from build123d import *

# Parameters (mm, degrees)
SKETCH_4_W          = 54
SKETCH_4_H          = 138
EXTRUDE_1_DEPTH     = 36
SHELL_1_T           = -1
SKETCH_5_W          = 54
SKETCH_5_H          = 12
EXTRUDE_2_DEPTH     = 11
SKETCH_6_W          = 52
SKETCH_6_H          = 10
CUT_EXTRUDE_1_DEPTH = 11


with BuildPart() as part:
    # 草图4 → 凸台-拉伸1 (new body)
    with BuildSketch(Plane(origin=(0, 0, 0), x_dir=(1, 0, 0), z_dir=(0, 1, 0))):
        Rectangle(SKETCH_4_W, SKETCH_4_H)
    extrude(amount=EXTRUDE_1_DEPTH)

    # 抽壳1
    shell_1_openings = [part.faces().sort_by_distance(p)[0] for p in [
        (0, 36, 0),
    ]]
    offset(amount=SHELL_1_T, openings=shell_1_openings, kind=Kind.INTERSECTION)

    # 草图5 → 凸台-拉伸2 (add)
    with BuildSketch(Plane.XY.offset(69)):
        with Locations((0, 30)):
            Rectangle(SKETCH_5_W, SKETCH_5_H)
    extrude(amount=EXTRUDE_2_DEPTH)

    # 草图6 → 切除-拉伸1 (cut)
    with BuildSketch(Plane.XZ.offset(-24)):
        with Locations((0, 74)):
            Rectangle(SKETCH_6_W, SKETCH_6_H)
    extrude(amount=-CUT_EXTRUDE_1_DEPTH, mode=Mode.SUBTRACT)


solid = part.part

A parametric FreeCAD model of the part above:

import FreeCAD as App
import Part
import Sketcher


def faces_at(feature, points):
    """Names of the faces that lie closest to the given points."""
    faces = feature.Shape.Faces
    near = lambda p: min(range(len(faces)), key=lambda i: faces[i].distToShape(Part.Vertex(*p))[0])
    return sorted({f"Face{near(p) + 1}" for p in points})

doc = App.newDocument("Part")
params = doc.addObject("Spreadsheet::Sheet", "Params")
for row, (alias, value) in enumerate([
    ("sketch1_width", "54 mm"),
    ("sketch1_height", "138 mm"),
    ("pad1_length", "36 mm"),
    ("thickness_wall", "1 mm"),
    ("sketch2_width", "54 mm"),
    ("sketch2_height", "12 mm"),
    ("pad2_length", "11 mm"),
    ("sketch3_width", "52 mm"),
    ("sketch3_height", "10 mm"),
    ("pocket1_length", "11 mm"),
], start=1):
    params.set(f"A{row}", alias)
    params.set(f"B{row}", "=" + value)
    params.setAlias(f"B{row}", alias)

body = doc.addObject("PartDesign::Body", "Body")

# Sketch on XZ plane
sketch1 = doc.addObject("Sketcher::SketchObject", "Sketch")
body.addObject(sketch1)
sketch1.AttachmentSupport = (doc.XZ_Plane, [""])
sketch1.MapMode = "FlatFace"
sketch1.addGeometry([
    Part.LineSegment(App.Vector(-27, -69, 0), App.Vector(-27, 69, 0)),
    Part.LineSegment(App.Vector(-27, 69, 0), App.Vector(27, 69, 0)),
    Part.LineSegment(App.Vector(27, 69, 0), App.Vector(27, -69, 0)),
    Part.LineSegment(App.Vector(27, -69, 0), App.Vector(-27, -69, 0)),
], False)
sketch1.addConstraint([
    Sketcher.Constraint("Coincident", 0, 2, 1, 1),
    Sketcher.Constraint("Coincident", 1, 2, 2, 1),
    Sketcher.Constraint("Coincident", 2, 2, 3, 1),
    Sketcher.Constraint("Coincident", 3, 2, 0, 1),
    Sketcher.Constraint("Vertical", 0),
    Sketcher.Constraint("Horizontal", 1),
    Sketcher.Constraint("Vertical", 2),
    Sketcher.Constraint("Horizontal", 3),
    Sketcher.Constraint("Symmetric", 0, 2, 2, 2, -1, 1),
    Sketcher.Constraint("DistanceX", 1, 1, 1, 2, 54.0),
    Sketcher.Constraint("DistanceY", 0, 1, 0, 2, 138.0),
])
sketch1.setExpression("Constraints[9]", "Params.sketch1_width")
sketch1.setExpression("Constraints[10]", "Params.sketch1_height")
pad1 = doc.addObject("PartDesign::Pad", "Pad")
body.addObject(pad1)
pad1.Profile = sketch1
pad1.setExpression("Length", "Params.pad1_length")
pad1.Reversed = True
doc.recompute()

thickness = doc.addObject("PartDesign::Thickness", "Thickness")
body.addObject(thickness)
thickness.Base = (pad1, faces_at(pad1, [(0, 36, 0)]))
thickness.setExpression("Value", "Params.thickness_wall")
thickness.Reversed = True
thickness.Join = "Intersection"

# Sketch on XY plane
sketch2 = doc.addObject("Sketcher::SketchObject", "Sketch001")
body.addObject(sketch2)
sketch2.AttachmentSupport = (doc.XY_Plane, [""])
sketch2.MapMode = "FlatFace"
sketch2.AttachmentOffset = App.Placement(App.Vector(0, 0, 69), App.Rotation())
sketch2.addGeometry([
    Part.LineSegment(App.Vector(-27, 36, 0), App.Vector(-27, 24, 0)),
    Part.LineSegment(App.Vector(-27, 24, 0), App.Vector(27, 24, 0)),
    Part.LineSegment(App.Vector(27, 24, 0), App.Vector(27, 36, 0)),
    Part.LineSegment(App.Vector(27, 36, 0), App.Vector(-27, 36, 0)),
], False)
sketch2.addConstraint([
    Sketcher.Constraint("Coincident", 0, 2, 1, 1),
    Sketcher.Constraint("Coincident", 1, 2, 2, 1),
    Sketcher.Constraint("Coincident", 2, 2, 3, 1),
    Sketcher.Constraint("Coincident", 3, 2, 0, 1),
    Sketcher.Constraint("Vertical", 0),
    Sketcher.Constraint("Horizontal", 1),
    Sketcher.Constraint("Vertical", 2),
    Sketcher.Constraint("Horizontal", 3),
    Sketcher.Constraint("DistanceX", 1, 1, 1, 2, 54.0),
    Sketcher.Constraint("DistanceY", 0, 2, 0, 1, 12.0),
    Sketcher.Constraint("DistanceX", 0, 2, -1, 1, 27.0),
    Sketcher.Constraint("DistanceY", -1, 1, 0, 2, 24.0),
])
sketch2.setExpression("Constraints[8]", "Params.sketch2_width")
sketch2.setExpression("Constraints[9]", "Params.sketch2_height")
pad2 = doc.addObject("PartDesign::Pad", "Pad001")
body.addObject(pad2)
pad2.Profile = sketch2
pad2.setExpression("Length", "Params.pad2_length")

# Sketch on XZ plane
sketch3 = doc.addObject("Sketcher::SketchObject", "Sketch002")
body.addObject(sketch3)
sketch3.AttachmentSupport = (doc.XZ_Plane, [""])
sketch3.MapMode = "FlatFace"
sketch3.AttachmentOffset = App.Placement(App.Vector(0, 0, -24), App.Rotation())
sketch3.addGeometry([
    Part.LineSegment(App.Vector(-26, 79, 0), App.Vector(-26, 69, 0)),
    Part.LineSegment(App.Vector(-26, 69, 0), App.Vector(26, 69, 0)),
    Part.LineSegment(App.Vector(26, 69, 0), App.Vector(26, 79, 0)),
    Part.LineSegment(App.Vector(26, 79, 0), App.Vector(-26, 79, 0)),
], False)
sketch3.addConstraint([
    Sketcher.Constraint("Coincident", 0, 2, 1, 1),
    Sketcher.Constraint("Coincident", 1, 2, 2, 1),
    Sketcher.Constraint("Coincident", 2, 2, 3, 1),
    Sketcher.Constraint("Coincident", 3, 2, 0, 1),
    Sketcher.Constraint("Vertical", 0),
    Sketcher.Constraint("Horizontal", 1),
    Sketcher.Constraint("Vertical", 2),
    Sketcher.Constraint("Horizontal", 3),
    Sketcher.Constraint("DistanceX", 1, 1, 1, 2, 52.0),
    Sketcher.Constraint("DistanceY", 0, 2, 0, 1, 10.0),
    Sketcher.Constraint("DistanceX", 0, 2, -1, 1, 26.0),
    Sketcher.Constraint("DistanceY", -1, 1, 0, 2, 69.0),
])
sketch3.setExpression("Constraints[8]", "Params.sketch3_width")
sketch3.setExpression("Constraints[9]", "Params.sketch3_height")
pocket1 = doc.addObject("PartDesign::Pocket", "Pocket")
body.addObject(pocket1)
pocket1.Profile = sketch3
pocket1.setExpression("Length", "Params.pocket1_length")

doc.recompute()
